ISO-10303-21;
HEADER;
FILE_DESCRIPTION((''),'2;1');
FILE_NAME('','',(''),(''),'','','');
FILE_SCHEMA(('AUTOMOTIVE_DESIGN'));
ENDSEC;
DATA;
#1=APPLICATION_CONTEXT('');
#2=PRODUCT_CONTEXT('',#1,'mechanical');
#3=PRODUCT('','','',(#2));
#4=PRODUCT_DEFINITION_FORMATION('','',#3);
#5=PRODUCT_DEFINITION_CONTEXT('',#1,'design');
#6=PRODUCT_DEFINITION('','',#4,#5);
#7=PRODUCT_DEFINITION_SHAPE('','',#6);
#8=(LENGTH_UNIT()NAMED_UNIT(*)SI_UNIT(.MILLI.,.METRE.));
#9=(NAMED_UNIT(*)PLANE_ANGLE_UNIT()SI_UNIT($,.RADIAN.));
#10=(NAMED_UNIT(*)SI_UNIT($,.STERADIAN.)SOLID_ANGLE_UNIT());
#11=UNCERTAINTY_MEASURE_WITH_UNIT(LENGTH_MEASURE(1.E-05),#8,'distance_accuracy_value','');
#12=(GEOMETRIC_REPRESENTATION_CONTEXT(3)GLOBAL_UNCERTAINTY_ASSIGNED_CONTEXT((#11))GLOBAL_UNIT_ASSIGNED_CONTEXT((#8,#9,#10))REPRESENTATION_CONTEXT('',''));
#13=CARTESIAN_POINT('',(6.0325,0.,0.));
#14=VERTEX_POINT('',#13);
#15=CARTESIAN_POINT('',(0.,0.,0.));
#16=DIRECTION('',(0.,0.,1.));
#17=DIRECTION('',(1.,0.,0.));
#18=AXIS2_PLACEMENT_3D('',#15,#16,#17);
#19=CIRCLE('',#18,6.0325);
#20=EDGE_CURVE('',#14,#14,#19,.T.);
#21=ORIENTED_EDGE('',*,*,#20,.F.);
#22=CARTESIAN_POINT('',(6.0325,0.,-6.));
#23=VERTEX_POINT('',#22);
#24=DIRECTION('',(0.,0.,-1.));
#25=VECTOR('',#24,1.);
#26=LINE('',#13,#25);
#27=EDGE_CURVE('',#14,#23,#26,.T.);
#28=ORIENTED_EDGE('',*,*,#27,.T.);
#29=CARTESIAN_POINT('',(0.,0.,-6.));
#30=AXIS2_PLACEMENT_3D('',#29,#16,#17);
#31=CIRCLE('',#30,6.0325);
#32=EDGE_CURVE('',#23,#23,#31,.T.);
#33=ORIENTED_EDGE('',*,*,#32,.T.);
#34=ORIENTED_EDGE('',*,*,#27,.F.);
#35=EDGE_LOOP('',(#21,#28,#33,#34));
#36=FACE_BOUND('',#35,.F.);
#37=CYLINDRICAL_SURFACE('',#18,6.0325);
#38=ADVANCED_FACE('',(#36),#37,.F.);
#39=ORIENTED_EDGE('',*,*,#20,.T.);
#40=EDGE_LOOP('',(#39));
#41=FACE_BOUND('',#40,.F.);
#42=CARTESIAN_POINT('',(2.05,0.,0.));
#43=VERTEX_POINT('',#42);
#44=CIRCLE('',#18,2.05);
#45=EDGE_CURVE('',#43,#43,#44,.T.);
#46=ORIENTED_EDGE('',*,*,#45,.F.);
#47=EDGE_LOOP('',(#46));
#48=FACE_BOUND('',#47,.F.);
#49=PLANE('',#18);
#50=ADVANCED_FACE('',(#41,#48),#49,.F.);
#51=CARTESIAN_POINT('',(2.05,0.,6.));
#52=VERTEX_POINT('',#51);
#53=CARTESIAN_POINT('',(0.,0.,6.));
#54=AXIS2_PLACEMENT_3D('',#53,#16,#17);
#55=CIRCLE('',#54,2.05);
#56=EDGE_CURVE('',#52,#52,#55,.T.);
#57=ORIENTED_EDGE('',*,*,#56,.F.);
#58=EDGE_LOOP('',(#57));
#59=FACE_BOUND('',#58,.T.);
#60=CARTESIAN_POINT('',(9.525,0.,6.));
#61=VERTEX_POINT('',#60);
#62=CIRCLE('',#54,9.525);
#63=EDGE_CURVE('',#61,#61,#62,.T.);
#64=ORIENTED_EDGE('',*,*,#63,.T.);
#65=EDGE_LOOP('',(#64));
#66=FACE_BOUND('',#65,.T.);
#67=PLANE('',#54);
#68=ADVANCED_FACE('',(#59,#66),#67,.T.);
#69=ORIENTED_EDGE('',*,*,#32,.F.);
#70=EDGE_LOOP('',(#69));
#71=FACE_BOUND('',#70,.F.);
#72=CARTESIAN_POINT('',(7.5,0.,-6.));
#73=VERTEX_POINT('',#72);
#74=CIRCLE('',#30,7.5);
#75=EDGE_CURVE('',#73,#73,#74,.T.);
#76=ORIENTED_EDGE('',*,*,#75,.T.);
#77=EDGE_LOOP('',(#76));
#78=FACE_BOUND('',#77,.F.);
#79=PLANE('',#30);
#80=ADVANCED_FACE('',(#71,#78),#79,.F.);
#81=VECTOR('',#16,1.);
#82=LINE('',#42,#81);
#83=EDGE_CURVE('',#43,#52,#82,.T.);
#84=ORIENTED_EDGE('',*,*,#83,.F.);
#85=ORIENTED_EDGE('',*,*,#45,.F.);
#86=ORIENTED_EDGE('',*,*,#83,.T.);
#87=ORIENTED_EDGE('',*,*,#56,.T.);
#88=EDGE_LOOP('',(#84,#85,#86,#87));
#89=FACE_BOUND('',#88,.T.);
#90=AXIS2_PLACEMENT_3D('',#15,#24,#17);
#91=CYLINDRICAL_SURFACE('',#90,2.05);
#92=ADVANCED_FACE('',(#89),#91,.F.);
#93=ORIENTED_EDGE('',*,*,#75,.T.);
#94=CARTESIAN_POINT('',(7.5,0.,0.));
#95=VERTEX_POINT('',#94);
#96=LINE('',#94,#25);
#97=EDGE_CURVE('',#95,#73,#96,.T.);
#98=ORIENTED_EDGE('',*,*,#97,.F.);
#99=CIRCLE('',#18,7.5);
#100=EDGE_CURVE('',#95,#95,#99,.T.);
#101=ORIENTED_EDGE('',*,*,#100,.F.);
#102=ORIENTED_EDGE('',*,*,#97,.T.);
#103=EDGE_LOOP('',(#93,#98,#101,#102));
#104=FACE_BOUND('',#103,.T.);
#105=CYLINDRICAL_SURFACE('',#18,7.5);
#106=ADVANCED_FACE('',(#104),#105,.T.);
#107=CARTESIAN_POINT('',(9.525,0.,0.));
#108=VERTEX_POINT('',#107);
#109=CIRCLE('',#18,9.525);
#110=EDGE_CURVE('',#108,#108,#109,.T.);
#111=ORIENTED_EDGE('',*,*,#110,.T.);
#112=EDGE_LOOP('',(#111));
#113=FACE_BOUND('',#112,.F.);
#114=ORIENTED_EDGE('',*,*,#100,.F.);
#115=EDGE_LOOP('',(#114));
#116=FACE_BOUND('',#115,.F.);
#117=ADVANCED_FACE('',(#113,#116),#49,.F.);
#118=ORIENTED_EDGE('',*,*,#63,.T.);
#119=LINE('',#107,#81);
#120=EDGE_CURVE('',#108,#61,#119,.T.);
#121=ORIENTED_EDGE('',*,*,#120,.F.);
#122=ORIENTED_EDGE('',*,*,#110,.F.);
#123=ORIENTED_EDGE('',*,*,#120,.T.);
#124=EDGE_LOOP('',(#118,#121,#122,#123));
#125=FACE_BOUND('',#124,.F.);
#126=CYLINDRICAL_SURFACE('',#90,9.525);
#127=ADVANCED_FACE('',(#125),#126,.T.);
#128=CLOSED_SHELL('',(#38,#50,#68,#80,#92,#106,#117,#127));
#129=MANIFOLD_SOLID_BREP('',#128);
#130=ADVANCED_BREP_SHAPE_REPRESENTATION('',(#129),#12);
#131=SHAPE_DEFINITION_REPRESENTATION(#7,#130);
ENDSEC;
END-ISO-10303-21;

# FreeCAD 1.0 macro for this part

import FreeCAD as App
import Part
import Sketcher
Q = App.Units.Quantity

doc = App.newDocument("Part")
body = doc.addObject("PartDesign::Body", "Body")

# Sketch on XY plane
sketch1 = body.newObject("Sketcher::SketchObject", "Sketch")
sketch1.AttachmentSupport = (doc.getObject("XY_Plane"), [""])
sketch1.MapMode = "FlatFace"
sketch1.addGeometry([
    Part.Circle(App.Vector(0, 0, 0), App.Vector(0, 0, 1), 9.5),
    Part.Circle(App.Vector(0, 0, 0), App.Vector(0, 0, 1), 2),
], False)
sketch1.addConstraint([
    Sketcher.Constraint("Coincident", 0, 3, -1, 1),
    Sketcher.Constraint("Coincident", 1, 3, -1, 1),
    Sketcher.Constraint("Diameter", 1, Q("4.1 mm")),
    Sketcher.Constraint("Diameter", 0, Q("19.05 mm")),
])
pad1 = body.newObject("PartDesign::Pad", "Pad")
pad1.Profile = sketch1
pad1.Length = 6

# Sketch on XY plane
sketch2 = body.newObject("Sketcher::SketchObject", "Sketch001")
sketch2.AttachmentSupport = (doc.getObject("XY_Plane"), [""])
sketch2.MapMode = "FlatFace"
sketch2.addGeometry([
    Part.Circle(App.Vector(0, 0, 0), App.Vector(0, 0, 1), 8),
    Part.Circle(App.Vector(0, 0, 0), App.Vector(0, 0, 1), 6),
], False)
sketch2.addConstraint([
    Sketcher.Constraint("Coincident", 0, 3, -1, 1),
    Sketcher.Constraint("Coincident", 1, 3, -1, 1),
    Sketcher.Constraint("Diameter", 0, Q("15 mm")),
    Sketcher.Constraint("Diameter", 1, Q("12.065 mm")),
])
pad2 = body.newObject("PartDesign::Pad", "Pad001")
pad2.Profile = sketch2
pad2.Length = 6
pad2.Reversed = True

doc.recompute()
